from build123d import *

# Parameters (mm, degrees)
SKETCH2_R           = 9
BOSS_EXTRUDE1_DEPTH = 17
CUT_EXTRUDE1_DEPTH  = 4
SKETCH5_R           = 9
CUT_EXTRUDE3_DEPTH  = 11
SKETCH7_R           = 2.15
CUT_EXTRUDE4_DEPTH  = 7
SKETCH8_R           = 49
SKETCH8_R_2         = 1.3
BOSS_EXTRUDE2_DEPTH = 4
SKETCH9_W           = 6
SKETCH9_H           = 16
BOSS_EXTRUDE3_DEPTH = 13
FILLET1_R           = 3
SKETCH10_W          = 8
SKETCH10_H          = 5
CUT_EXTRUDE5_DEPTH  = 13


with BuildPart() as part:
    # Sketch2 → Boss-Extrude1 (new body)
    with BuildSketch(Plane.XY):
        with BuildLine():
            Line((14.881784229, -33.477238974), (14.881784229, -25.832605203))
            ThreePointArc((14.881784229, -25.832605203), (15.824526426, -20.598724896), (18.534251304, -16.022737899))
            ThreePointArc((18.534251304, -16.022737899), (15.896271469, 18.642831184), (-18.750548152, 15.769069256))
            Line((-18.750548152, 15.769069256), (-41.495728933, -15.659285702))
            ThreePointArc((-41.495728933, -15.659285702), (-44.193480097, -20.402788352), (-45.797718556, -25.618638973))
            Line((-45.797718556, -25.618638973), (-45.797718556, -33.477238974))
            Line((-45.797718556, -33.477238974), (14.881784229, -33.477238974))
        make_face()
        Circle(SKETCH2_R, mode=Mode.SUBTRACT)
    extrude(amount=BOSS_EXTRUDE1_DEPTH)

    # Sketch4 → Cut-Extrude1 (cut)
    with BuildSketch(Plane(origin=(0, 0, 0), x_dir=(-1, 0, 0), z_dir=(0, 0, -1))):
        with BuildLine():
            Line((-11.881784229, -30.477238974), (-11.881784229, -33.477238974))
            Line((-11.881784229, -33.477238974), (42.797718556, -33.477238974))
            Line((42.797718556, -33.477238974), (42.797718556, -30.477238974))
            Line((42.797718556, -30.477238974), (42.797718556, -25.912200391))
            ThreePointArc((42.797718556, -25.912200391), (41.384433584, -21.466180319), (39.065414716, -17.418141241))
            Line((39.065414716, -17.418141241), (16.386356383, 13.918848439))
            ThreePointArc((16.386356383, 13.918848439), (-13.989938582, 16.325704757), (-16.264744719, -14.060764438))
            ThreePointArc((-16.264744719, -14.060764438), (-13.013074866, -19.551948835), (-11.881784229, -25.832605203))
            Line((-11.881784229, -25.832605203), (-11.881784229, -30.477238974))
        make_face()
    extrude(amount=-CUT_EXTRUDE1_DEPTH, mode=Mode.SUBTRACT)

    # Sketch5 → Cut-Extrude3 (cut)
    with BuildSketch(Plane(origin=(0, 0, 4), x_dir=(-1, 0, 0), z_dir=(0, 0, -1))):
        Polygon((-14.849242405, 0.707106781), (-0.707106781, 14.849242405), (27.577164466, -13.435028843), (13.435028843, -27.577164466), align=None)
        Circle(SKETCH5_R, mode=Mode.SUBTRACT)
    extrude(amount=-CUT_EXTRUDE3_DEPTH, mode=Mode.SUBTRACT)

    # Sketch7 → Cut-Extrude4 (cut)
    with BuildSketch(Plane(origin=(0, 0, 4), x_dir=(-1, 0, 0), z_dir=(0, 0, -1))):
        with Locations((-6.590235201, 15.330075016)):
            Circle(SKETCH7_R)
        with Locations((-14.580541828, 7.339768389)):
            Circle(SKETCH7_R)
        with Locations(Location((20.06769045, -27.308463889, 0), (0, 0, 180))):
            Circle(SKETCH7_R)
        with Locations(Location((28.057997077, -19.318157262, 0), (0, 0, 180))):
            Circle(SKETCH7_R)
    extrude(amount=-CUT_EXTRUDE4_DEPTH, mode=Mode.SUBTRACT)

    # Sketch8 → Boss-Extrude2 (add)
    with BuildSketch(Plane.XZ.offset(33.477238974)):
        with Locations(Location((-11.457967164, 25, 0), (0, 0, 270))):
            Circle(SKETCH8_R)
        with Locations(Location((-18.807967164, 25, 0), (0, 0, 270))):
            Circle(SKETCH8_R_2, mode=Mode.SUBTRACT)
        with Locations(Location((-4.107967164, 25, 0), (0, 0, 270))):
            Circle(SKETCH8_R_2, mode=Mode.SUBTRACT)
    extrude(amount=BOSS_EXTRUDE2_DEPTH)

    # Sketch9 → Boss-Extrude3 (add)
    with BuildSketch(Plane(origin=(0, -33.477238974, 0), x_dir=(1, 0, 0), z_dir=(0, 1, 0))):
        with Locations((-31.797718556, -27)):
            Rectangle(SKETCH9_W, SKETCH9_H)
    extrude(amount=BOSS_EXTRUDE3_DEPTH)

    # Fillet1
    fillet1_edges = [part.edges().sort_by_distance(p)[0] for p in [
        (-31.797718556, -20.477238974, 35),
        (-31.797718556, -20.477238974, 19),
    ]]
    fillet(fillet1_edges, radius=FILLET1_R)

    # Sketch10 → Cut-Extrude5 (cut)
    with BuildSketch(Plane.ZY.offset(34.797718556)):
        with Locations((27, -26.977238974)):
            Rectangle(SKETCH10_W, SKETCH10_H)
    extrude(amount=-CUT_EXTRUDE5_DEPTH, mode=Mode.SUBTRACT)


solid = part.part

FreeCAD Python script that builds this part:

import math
import FreeCAD as App
import Part
import Sketcher
Q = App.Units.Quantity


def edges_at(feature, points):
    """Names of the edges that pass closest to the given points."""
    edges = feature.Shape.Edges
    near = lambda p: min(range(len(edges)), key=lambda i: edges[i].distToShape(Part.Vertex(*p))[0])
    return sorted({f"Edge{near(p) + 1}" for p in points})


def add_polygon(sketch, points):
    """Adds a closed chain of lines whose ends are joined by coincident constraints."""
    first, n = sketch.GeometryCount, len(points)
    for a, b in zip(points, points[1:] + points[:1]):
        sketch.addGeometry(Part.LineSegment(App.Vector(*a, 0), App.Vector(*b, 0)), False)
    for i in range(n):
        sketch.addConstraint(Sketcher.Constraint("Coincident", first + i, 2, first + (i + 1) % n, 1))

doc = App.newDocument("Part")
body = doc.addObject("PartDesign::Body", "Body")

# Sketch on XY plane
sketch1 = body.newObject("Sketcher::SketchObject", "Sketch")
sketch1.AttachmentSupport = (doc.getObject("XY_Plane"), [""])
sketch1.MapMode = "FlatFace"
sketch1.addGeometry(Part.LineSegment(App.Vector(14.881784, -33.477239, 0), App.Vector(14.881784, -25.832605, 0)), False)
sketch1.addGeometry(Part.ArcOfCircle(Part.Circle(App.Vector(29.881784, -25.832605, 0), App.Vector(0, 0, 1), 15), math.radians(139.156802), math.radians(180)), False)
sketch1.addGeometry(Part.ArcOfCircle(Part.Circle(App.Vector(0, 0, 0), App.Vector(0, 0, 1), 24.499931), math.radians(-40.843198), math.radians(139.936418)), False)
sketch1.addGeometry(Part.LineSegment(App.Vector(-18.750548, 15.769069, 0), App.Vector(-41.495729, -15.659286, 0)), False)
sketch1.addGeometry(Part.ArcOfCircle(Part.Circle(App.Vector(-21.243475, -30.316151, 0), App.Vector(0, 0, 1), 24.99955), math.radians(144.106166), math.radians(169.169518)), False)
sketch1.addGeometry(Part.LineSegment(App.Vector(-45.797719, -25.618639, 0), App.Vector(-45.797719, -33.477239, 0)), False)
sketch1.addGeometry(Part.LineSegment(App.Vector(-45.797719, -33.477239, 0), App.Vector(14.881784, -33.477239, 0)), False)
sketch1.addGeometry(Part.Circle(App.Vector(0, 0, 0), App.Vector(0, 0, 1), 9), False)
sketch1.addConstraint(Sketcher.Constraint("Tangent", 0, 2, 1, 2))
sketch1.addConstraint(Sketcher.Constraint("Tangent", 1, 1, 2, 1))
sketch1.addConstraint(Sketcher.Constraint("Coincident", 2, 2, 3, 1))
sketch1.addConstraint(Sketcher.Constraint("Tangent", 3, 2, 4, 1))
sketch1.addConstraint(Sketcher.Constraint("Coincident", 4, 2, 5, 1))
sketch1.addConstraint(Sketcher.Constraint("Coincident", 5, 2, 6, 1))
sketch1.addConstraint(Sketcher.Constraint("Coincident", 6, 2, 0, 1))
sketch1.addConstraint(Sketcher.Constraint("Vertical", 0))
sketch1.addConstraint(Sketcher.Constraint("Vertical", 5))
sketch1.addConstraint(Sketcher.Constraint("Horizontal", 6))
sketch1.addConstraint(Sketcher.Constraint("Coincident", 2, 3, -1, 1))
sketch1.addConstraint(Sketcher.Constraint("Coincident", 7, 3, -1, 1))
sketch1.addConstraint(Sketcher.Constraint("Diameter", 7, 18.0))
sketch1.addConstraint(Sketcher.Constraint("Radius", 1, 15.0))
sketch1.addConstraint(Sketcher.Constraint("Radius", 2, 24.499931))
sketch1.addConstraint(Sketcher.Constraint("Radius", 4, 24.99955))
sketch1.addConstraint(Sketcher.Constraint("DistanceY", 5, 2, 5, 1, 7.8586))
sketch1.addConstraint(Sketcher.Constraint("DistanceX", 2, 2, 1, 1, 37.284799))
sketch1.addConstraint(Sketcher.Constraint("DistanceY", 6, 2, 1, 1, 17.454501))
sketch1.addConstraint(Sketcher.Constraint("Distance", 3, 38.795422))
sketch1.addConstraint(Sketcher.Constraint("DistanceX", 6, 1, 6, 2, 60.679503))
sketch1.addConstraint(Sketcher.Constraint("DistanceY", 0, 1, 0, 2, 7.644634))
pad1 = body.newObject("PartDesign::Pad", "Pad")
pad1.Profile = sketch1
pad1.Length = 17

# Sketch on XY plane
sketch2 = body.newObject("Sketcher::SketchObject", "Sketch001")
sketch2.AttachmentSupport = (doc.getObject("XY_Plane"), [""])
sketch2.MapMode = "FlatFace"
sketch2.addGeometry(Part.LineSegment(App.Vector(11.881784, -33.477239, 0), App.Vector(-42.797719, -33.477239, 0)), False)
sketch2.addGeometry(Part.LineSegment(App.Vector(-42.797719, -33.477239, 0), App.Vector(-42.797719, -25.9122, 0)), False)
sketch2.addGeometry(Part.ArcOfCircle(Part.Circle(App.Vector(-21.243475, -30.316151, 0), App.Vector(0, 0, 1), 21.99955), math.radians(144.106166), math.radians(168.4523)), False)
sketch2.addGeometry(Part.LineSegment(App.Vector(-39.065415, -17.418141, 0), App.Vector(-16.386356, 13.918848, 0)), False)
sketch2.addGeometry(Part.ArcOfCircle(Part.Circle(App.Vector(0, 0, 0), App.Vector(0, 0, 1), 21.499931), math.radians(-40.843198), math.radians(139.654864)), False)
sketch2.addGeometry(Part.ArcOfCircle(Part.Circle(App.Vector(29.881784, -25.832605, 0), App.Vector(0, 0, 1), 18), math.radians(139.156802), math.radians(180)), False)
sketch2.addGeometry(Part.LineSegment(App.Vector(11.881784, -25.832605, 0), App.Vector(11.881784, -33.477239, 0)), False)
sketch2.addConstraint(Sketcher.Constraint("Coincident", 0, 2, 1, 1))
sketch2.addConstraint(Sketcher.Constraint("Coincident", 1, 2, 2, 2))
sketch2.addConstraint(Sketcher.Constraint("Tangent", 2, 1, 3, 1))
sketch2.addConstraint(Sketcher.Constraint("Coincident", 3, 2, 4, 2))
sketch2.addConstraint(Sketcher.Constraint("Tangent", 4, 1, 5, 1))
sketch2.addConstraint(Sketcher.Constraint("Tangent", 5, 2, 6, 1))
sketch2.addConstraint(Sketcher.Constraint("Coincident", 6, 2, 0, 1))
sketch2.addConstraint(Sketcher.Constraint("Horizontal", 0))
sketch2.addConstraint(Sketcher.Constraint("Vertical", 1))
sketch2.addConstraint(Sketcher.Constraint("Vertical", 6))
sketch2.addConstraint(Sketcher.Constraint("Coincident", 4, 3, -1, 1))
sketch2.addConstraint(Sketcher.Constraint("Radius", 5, 18.0))
sketch2.addConstraint(Sketcher.Constraint("Radius", 2, 21.99955))
sketch2.addConstraint(Sketcher.Constraint("Radius", 4, 21.499931))
sketch2.addConstraint(Sketcher.Constraint("DistanceY", 2, 3, 3, 2, 44.235))
sketch2.addConstraint(Sketcher.Constraint("DistanceY", 1, 1, 1, 2, 7.565039))
sketch2.addConstraint(Sketcher.Constraint("DistanceY", 1, 2, -1, 1, 25.9122))
sketch2.addConstraint(Sketcher.Constraint("DistanceX", 2, 1, 5, 3, 68.947199))
sketch2.addConstraint(Sketcher.Constraint("DistanceX", 3, 2, 4, 1, 32.651101))
sketch2.addConstraint(Sketcher.Constraint("Distance", 3, 38.68264))
pocket1 = body.newObject("PartDesign::Pocket", "Pocket")
pocket1.Profile = sketch2
pocket1.Length = 4
pocket1.Reversed = True

# Sketch on XY plane
sketch3 = body.newObject("Sketcher::SketchObject", "Sketch002")
sketch3.AttachmentSupport = (doc.getObject("XY_Plane"), [""])
sketch3.MapMode = "FlatFace"
sketch3.AttachmentOffset = App.Placement(App.Vector(0, 0, 4), App.Rotation())
add_polygon(sketch3, [(0.707107, 14.849242), (14.849242, 0.707107), (-13.435029, -27.577164), (-27.577164, -13.435029)])  # lines 0-3
sketch3.addGeometry(Part.Circle(App.Vector(0, 0, 0), App.Vector(0, 0, 1), 9), False)  # 4
sketch3.addConstraint(Sketcher.Constraint("Coincident", 4, 3, -1, 1))
sketch3.addConstraint(Sketcher.Constraint("Perpendicular", 0, 1))
sketch3.addConstraint(Sketcher.Constraint("Perpendicular", 1, 2))
sketch3.addConstraint(Sketcher.Constraint("Perpendicular", 2, 3))
sketch3.addConstraint(Sketcher.Constraint("Diameter", 4, 18.0))
sketch3.addConstraint(Sketcher.Constraint("Angle", 0, Q("-45 deg")))
sketch3.addConstraint(Sketcher.Constraint("Distance", 0, 20.0))
sketch3.addConstraint(Sketcher.Constraint("Distance", 1, 40.0))
sketch3.addConstraint(Sketcher.Constraint("DistanceX", 1, 2, -1, 1, 13.435029))
sketch3.addConstraint(Sketcher.Constraint("DistanceY", 2, 2, -1, 1, 13.435029))
pocket2 = body.newObject("PartDesign::Pocket", "Pocket001")
pocket2.Profile = sketch3
pocket2.Length = 11
pocket2.Reversed = True

# Sketch on XY plane
sketch4 = body.newObject("Sketcher::SketchObject", "Sketch003")
sketch4.AttachmentSupport = (doc.getObject("XY_Plane"), [""])
sketch4.MapMode = "FlatFace"
sketch4.AttachmentOffset = App.Placement(App.Vector(0, 0, 4), App.Rotation())
sketch4.addGeometry(Part.Circle(App.Vector(6.590235, 15.330075, 0), App.Vector(0, 0, 1), 2.15), False)
sketch4.addGeometry(Part.Circle(App.Vector(14.580542, 7.339768, 0), App.Vector(0, 0, 1), 2.15), False)
sketch4.addGeometry(Part.Circle(App.Vector(-20.06769, -27.308464, 0), App.Vector(0, 0, 1), 2.15), False)
sketch4.addGeometry(Part.Circle(App.Vector(-28.057997, -19.318157, 0), App.Vector(0, 0, 1), 2.15), False)
sketch4.addConstraint(Sketcher.Constraint("Equal", 0, 1))
sketch4.addConstraint(Sketcher.Constraint("Equal", 1, 2))
sketch4.addConstraint(Sketcher.Constraint("Equal", 2, 3))
sketch4.addConstraint(Sketcher.Constraint("Diameter", 0, 4.3))
sketch4.addConstraint(Sketcher.Constraint("DistanceX", -1, 1, 1, 3, 14.580542))
sketch4.addConstraint(Sketcher.Constraint("DistanceY", -1, 1, 1, 3, 7.339768))
sketch4.addConstraint(Sketcher.Constraint("DistanceX", 2, 3, -1, 1, 20.06769))
sketch4.addConstraint(Sketcher.Constraint("DistanceY", 2, 3, 0, 3, 42.638539))
sketch4.addConstraint(Sketcher.Constraint("DistanceX", 3, 3, 1, 3, 42.638539))
sketch4.addConstraint(Sketcher.Constraint("DistanceX", -1, 1, 0, 3, 6.590235))
sketch4.addConstraint(Sketcher.Constraint("DistanceY", -1, 1, 0, 3, 15.330075))
sketch4.addConstraint(Sketcher.Constraint("DistanceY", 3, 3, -1, 1, 19.318157))
pocket3 = body.newObject("PartDesign::Pocket", "Pocket002")
pocket3.Profile = sketch4
pocket3.Length = 7
pocket3.Reversed = True

# Sketch on XZ plane
sketch5 = body.newObject("Sketcher::SketchObject", "Sketch004")
sketch5.AttachmentSupport = (doc.getObject("XZ_Plane"), [""])
sketch5.MapMode = "FlatFace"
sketch5.AttachmentOffset = App.Placement(App.Vector(0, 0, 33.477239), App.Rotation())
sketch5.addGeometry(Part.Circle(App.Vector(-11.457967, 25, 0), App.Vector(0, 0, 1), 49), False)
sketch5.addGeometry(Part.Circle(App.Vector(-18.807967, 25, 0), App.Vector(0, 0, 1), 1.3), False)
sketch5.addGeometry(Part.Circle(App.Vector(-4.107967, 25, 0), App.Vector(0, 0, 1), 1.3), False)
sketch5.addConstraint(Sketcher.Constraint("Equal", 1, 2))
sketch5.addConstraint(Sketcher.Constraint("Horizontal", 0, 3, 1, 3))
sketch5.addConstraint(Sketcher.Constraint("Horizontal", 1, 3, 2, 3))
sketch5.addConstraint(Sketcher.Constraint("Diameter", 0, 98.0))
sketch5.addConstraint(Sketcher.Constraint("Diameter", 1, 2.6))
sketch5.addConstraint(Sketcher.Constraint("DistanceY", -1, 1, 0, 3, 25.0))
sketch5.addConstraint(Sketcher.Constraint("DistanceX", 1, 3, 2, 3, 14.7))
sketch5.addConstraint(Sketcher.Constraint("DistanceX", 1, 3, 0, 3, 7.35))
sketch5.addConstraint(Sketcher.Constraint("DistanceX", 0, 3, -1, 1, 11.457967))
pad2 = body.newObject("PartDesign::Pad", "Pad001")
pad2.Profile = sketch5
pad2.Length = 4

# Sketch on XZ plane
sketch6 = body.newObject("Sketcher::SketchObject", "Sketch005")
sketch6.AttachmentSupport = (doc.getObject("XZ_Plane"), [""])
sketch6.MapMode = "FlatFace"
sketch6.AttachmentOffset = App.Placement(App.Vector(0, 0, 33.477239), App.Rotation())
add_polygon(sketch6, [(-34.797719, 19), (-34.797719, 35), (-28.797719, 35), (-28.797719, 19)])  # lines 0-3
sketch6.addConstraint(Sketcher.Constraint("Vertical", 0))
sketch6.addConstraint(Sketcher.Constraint("Horizontal", 1))
sketch6.addConstraint(Sketcher.Constraint("Vertical", 2))
sketch6.addConstraint(Sketcher.Constraint("Horizontal", 3))
sketch6.addConstraint(Sketcher.Constraint("DistanceX", 1, 1, 1, 2, 6.0))
sketch6.addConstraint(Sketcher.Constraint("DistanceY", 0, 1, 0, 2, 16.0))
sketch6.addConstraint(Sketcher.Constraint("DistanceY", -1, 1, 0, 2, 35.0))
sketch6.addConstraint(Sketcher.Constraint("DistanceX", 0, 2, -1, 1, 34.797719))
pad3 = body.newObject("PartDesign::Pad", "Pad002")
pad3.Profile = sketch6
pad3.Length = 13
pad3.Reversed = True
doc.recompute()

fillet = body.newObject("PartDesign::Fillet", "Fillet")
fillet.Base = (pad3, edges_at(pad3, [(-31.798, -20.477, 35), (-31.798, -20.477, 19)]))
fillet.Radius = 3

# Sketch on YZ plane
sketch7 = body.newObject("Sketcher::SketchObject", "Sketch006")
sketch7.AttachmentSupport = (doc.getObject("YZ_Plane"), [""])
sketch7.MapMode = "FlatFace"
sketch7.AttachmentOffset = App.Placement(App.Vector(0, 0, -34.797719), App.Rotation())
add_polygon(sketch7, [(-24.477239, 23), (-29.477239, 23), (-29.477239, 31), (-24.477239, 31)])  # lines 0-3
sketch7.addConstraint(Sketcher.Constraint("Horizontal", 0))
sketch7.addConstraint(Sketcher.Constraint("Vertical", 1))
sketch7.addConstraint(Sketcher.Constraint("Horizontal", 2))
sketch7.addConstraint(Sketcher.Constraint("Vertical", 3))
sketch7.addConstraint(Sketcher.Constraint("DistanceX", 0, 2, 0, 1, 5.0))
sketch7.addConstraint(Sketcher.Constraint("DistanceY", 1, 1, 1, 2, 8.0))
sketch7.addConstraint(Sketcher.Constraint("DistanceY", -1, 1, 0, 2, 23.0))
sketch7.addConstraint(Sketcher.Constraint("DistanceX", 0, 2, -1, 1, 29.477239))
pocket4 = body.newObject("PartDesign::Pocket", "Pocket003")
pocket4.Profile = sketch7
pocket4.Length = 13
pocket4.Reversed = True

doc.recompute()
